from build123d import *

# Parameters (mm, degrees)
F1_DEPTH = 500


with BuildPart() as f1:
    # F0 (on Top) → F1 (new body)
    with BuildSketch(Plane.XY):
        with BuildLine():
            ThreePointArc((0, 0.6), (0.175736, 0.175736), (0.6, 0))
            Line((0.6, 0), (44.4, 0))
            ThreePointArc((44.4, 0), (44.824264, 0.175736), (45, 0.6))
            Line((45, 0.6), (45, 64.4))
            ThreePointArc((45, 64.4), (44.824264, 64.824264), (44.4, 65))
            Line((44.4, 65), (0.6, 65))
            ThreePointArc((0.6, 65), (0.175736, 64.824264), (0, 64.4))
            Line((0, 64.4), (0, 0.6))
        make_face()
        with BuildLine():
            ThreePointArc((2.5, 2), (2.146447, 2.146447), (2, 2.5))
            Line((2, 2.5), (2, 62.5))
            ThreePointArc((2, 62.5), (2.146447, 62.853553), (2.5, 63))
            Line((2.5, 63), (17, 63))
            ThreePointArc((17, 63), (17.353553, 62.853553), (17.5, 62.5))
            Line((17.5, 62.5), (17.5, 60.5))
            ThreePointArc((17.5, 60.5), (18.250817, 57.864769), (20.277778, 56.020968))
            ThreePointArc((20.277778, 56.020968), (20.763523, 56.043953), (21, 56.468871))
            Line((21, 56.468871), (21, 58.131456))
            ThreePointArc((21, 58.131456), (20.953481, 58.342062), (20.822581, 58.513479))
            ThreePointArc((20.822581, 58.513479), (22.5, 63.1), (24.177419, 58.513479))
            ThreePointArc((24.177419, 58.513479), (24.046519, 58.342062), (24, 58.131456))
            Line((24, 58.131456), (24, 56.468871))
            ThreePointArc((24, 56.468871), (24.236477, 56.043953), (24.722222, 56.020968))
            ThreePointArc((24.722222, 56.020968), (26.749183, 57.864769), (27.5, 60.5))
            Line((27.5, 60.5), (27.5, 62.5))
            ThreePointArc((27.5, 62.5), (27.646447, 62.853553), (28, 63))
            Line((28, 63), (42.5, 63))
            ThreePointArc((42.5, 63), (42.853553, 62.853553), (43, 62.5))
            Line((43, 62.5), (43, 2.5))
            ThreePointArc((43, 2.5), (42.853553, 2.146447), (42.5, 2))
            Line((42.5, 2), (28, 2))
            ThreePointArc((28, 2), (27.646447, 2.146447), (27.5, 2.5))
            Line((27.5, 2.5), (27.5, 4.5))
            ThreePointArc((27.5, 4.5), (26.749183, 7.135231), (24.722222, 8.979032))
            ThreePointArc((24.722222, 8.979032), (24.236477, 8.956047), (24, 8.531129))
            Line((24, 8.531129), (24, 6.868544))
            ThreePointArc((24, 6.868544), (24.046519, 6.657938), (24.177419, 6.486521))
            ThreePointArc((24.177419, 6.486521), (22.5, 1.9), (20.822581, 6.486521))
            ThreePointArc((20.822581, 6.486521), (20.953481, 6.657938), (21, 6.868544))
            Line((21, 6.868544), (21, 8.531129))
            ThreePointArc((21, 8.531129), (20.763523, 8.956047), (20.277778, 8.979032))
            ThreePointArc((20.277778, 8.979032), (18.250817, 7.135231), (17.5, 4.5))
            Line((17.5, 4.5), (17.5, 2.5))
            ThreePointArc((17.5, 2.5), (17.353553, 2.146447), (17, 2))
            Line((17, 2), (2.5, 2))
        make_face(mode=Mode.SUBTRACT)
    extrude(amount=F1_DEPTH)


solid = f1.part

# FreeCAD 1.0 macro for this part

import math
import FreeCAD as App
import Part
import Sketcher
from FreeCAD import Vector
Q = App.Units.Quantity

doc = App.newDocument("Part")
params = doc.addObject("Spreadsheet::Sheet", "Params")
for row, (alias, value) in enumerate([
    ("sketch1_radius", "5 mm"),
    ("sketch1_radius2", "0.6 mm"),
    ("sketch1_radius3", "0.500001 mm"),
    ("sketch1_radius4", "2.6 mm"),
    ("sketch1_height", "60 mm"),
    ("pad1_length", "500 mm"),
], start=1):
    params.set(f"A{row}", alias)
    params.set(f"B{row}", "=" + value)
    params.setAlias(f"B{row}", alias)

body = doc.addObject("PartDesign::Body", "Body")

sketch1 = doc.addObject("Sketcher::SketchObject", "Sketch")
body.addObject(sketch1)
sketch1.AttachmentSupport = (doc.XY_Plane, [""])
sketch1.MapMode = "FlatFace"
sketch1.addGeometry(Part.ArcOfCircle(Part.Circle(Vector(0.6, 0.6, 0), Vector(0, 0, 1), 0.6), math.radians(-180), math.radians(-90)), False)
sketch1.addGeometry(Part.LineSegment(Vector(0.6, 0, 0), Vector(44.4, 0, 0)), False)
sketch1.addGeometry(Part.ArcOfCircle(Part.Circle(Vector(44.4, 0.6, 0), Vector(0, 0, 1), 0.6), math.radians(-90), math.radians(0)), False)
sketch1.addGeometry(Part.LineSegment(Vector(45, 0.6, 0), Vector(45, 64.4, 0)), False)
sketch1.addGeometry(Part.ArcOfCircle(Part.Circle(Vector(44.4, 64.4, 0), Vector(0, 0, 1), 0.6), math.radians(0), math.radians(90)), False)
sketch1.addGeometry(Part.LineSegment(Vector(44.4, 65, 0), Vector(0.6, 65, 0)), False)
sketch1.addGeometry(Part.ArcOfCircle(Part.Circle(Vector(0.6, 64.4, 0), Vector(0, 0, 1), 0.6), math.radians(90), math.radians(180)), False)
sketch1.addGeometry(Part.LineSegment(Vector(0, 64.4, 0), Vector(0, 0.6, 0)), False)
sketch1.addGeometry(Part.LineSegment(Vector(17, 2, 0), Vector(2.5, 2, 0)), False)
sketch1.addGeometry(Part.ArcOfCircle(Part.Circle(Vector(2.5, 2.5, 0), Vector(0, 0, 1), 0.5), math.radians(-180), math.radians(-90)), False)
sketch1.addGeometry(Part.LineSegment(Vector(2, 2.5, 0), Vector(2, 62.5, 0)), False)
sketch1.addGeometry(Part.ArcOfCircle(Part.Circle(Vector(2.5, 62.5, 0), Vector(0, 0, 1), 0.5), math.radians(90), math.radians(180)), False)
sketch1.addGeometry(Part.LineSegment(Vector(2.5, 63, 0), Vector(17, 63, 0)), False)
sketch1.addGeometry(Part.ArcOfCircle(Part.Circle(Vector(17, 62.5, 0), Vector(0, 0, 1), 0.5), math.radians(0), math.radians(90)), False)
sketch1.addGeometry(Part.LineSegment(Vector(17.5, 62.5, 0), Vector(17.5, 60.5, 0)), False)
sketch1.addGeometry(Part.ArcOfCircle(Part.Circle(Vector(22.5, 60.5, 0), Vector(0, 0, 1), 5), math.radians(-180), math.radians(-116)), False)
sketch1.addGeometry(Part.ArcOfCircle(Part.Circle(Vector(20.5, 56.47, 0), Vector(0, 0, 1), 0.5), math.radians(-116), math.radians(0)), False)
sketch1.addGeometry(Part.LineSegment(Vector(21, 56.47, 0), Vector(21, 58.13, 0)), False)
sketch1.addGeometry(Part.ArcOfCircle(Part.Circle(Vector(20.5, 58.13, 0), Vector(0, 0, 1), 0.5), math.radians(0), math.radians(50)), False)
sketch1.addGeometry(Part.ArcOfCircle(Part.Circle(Vector(22.5, 60.5, 0), Vector(0, 0, 1), 2.6), math.radians(-50), math.radians(230)), False)
sketch1.addGeometry(Part.ArcOfCircle(Part.Circle(Vector(24.5, 58.13, 0), Vector(0, 0, 1), 0.5), math.radians(130), math.radians(180)), False)
sketch1.addGeometry(Part.LineSegment(Vector(24, 58.13, 0), Vector(24, 56.47, 0)), False)
sketch1.addGeometry(Part.ArcOfCircle(Part.Circle(Vector(24.5, 56.47, 0), Vector(0, 0, 1), 0.5), math.radians(-180), math.radians(-64)), False)
sketch1.addGeometry(Part.ArcOfCircle(Part.Circle(Vector(22.5, 60.5, 0), Vector(0, 0, 1), 5), math.radians(-64), math.radians(0)), False)
sketch1.addGeometry(Part.LineSegment(Vector(27.5, 60.5, 0), Vector(27.5, 62.5, 0)), False)
sketch1.addGeometry(Part.ArcOfCircle(Part.Circle(Vector(28, 62.5, 0), Vector(0, 0, 1), 0.5), math.radians(90), math.radians(180)), False)
sketch1.addGeometry(Part.LineSegment(Vector(28, 63, 0), Vector(42.5, 63, 0)), False)
sketch1.addGeometry(Part.ArcOfCircle(Part.Circle(Vector(42.5, 62.5, 0), Vector(0, 0, 1), 0.5), math.radians(0), math.radians(90)), False)
sketch1.addGeometry(Part.LineSegment(Vector(43, 62.5, 0), Vector(43, 2.5, 0)), False)
sketch1.addGeometry(Part.ArcOfCircle(Part.Circle(Vector(42.5, 2.5, 0), Vector(0, 0, 1), 0.5), math.radians(-90), math.radians(0)), False)
sketch1.addGeometry(Part.LineSegment(Vector(42.5, 2, 0), Vector(28, 2, 0)), False)
sketch1.addGeometry(Part.ArcOfCircle(Part.Circle(Vector(28, 2.5, 0), Vector(0, 0, 1), 0.5), math.radians(-180), math.radians(-90)), False)
sketch1.addGeometry(Part.LineSegment(Vector(27.5, 2.5, 0), Vector(27.5, 4.5, 0)), False)
sketch1.addGeometry(Part.ArcOfCircle(Part.Circle(Vector(22.5, 4.5, 0), Vector(0, 0, 1), 5), math.radians(0), math.radians(64)), False)
sketch1.addGeometry(Part.ArcOfCircle(Part.Circle(Vector(24.5, 8.53, 0), Vector(0, 0, 1), 0.5), math.radians(64), math.radians(180)), False)
sketch1.addGeometry(Part.LineSegment(Vector(24, 8.53, 0), Vector(24, 6.87, 0)), False)
sketch1.addGeometry(Part.ArcOfCircle(Part.Circle(Vector(24.5, 6.87, 0), Vector(0, 0, 1), 0.5), math.radians(-180), math.radians(-130)), False)
sketch1.addGeometry(Part.ArcOfCircle(Part.Circle(Vector(22.5, 4.5, 0), Vector(0, 0, 1), 2.6), math.radians(130), math.radians(410)), False)
sketch1.addGeometry(Part.ArcOfCircle(Part.Circle(Vector(20.5, 6.87, 0), Vector(0, 0, 1), 0.5), math.radians(-50), math.radians(0)), False)
sketch1.addGeometry(Part.LineSegment(Vector(21, 6.87, 0), Vector(21, 8.53, 0)), False)
sketch1.addGeometry(Part.ArcOfCircle(Part.Circle(Vector(20.5, 8.53, 0), Vector(0, 0, 1), 0.5), math.radians(0), math.radians(116)), False)
sketch1.addGeometry(Part.ArcOfCircle(Part.Circle(Vector(22.5, 4.5, 0), Vector(0, 0, 1), 5), math.radians(116), math.radians(180)), False)
sketch1.addGeometry(Part.LineSegment(Vector(17.5, 4.5, 0), Vector(17.5, 2.5, 0)), False)
sketch1.addGeometry(Part.ArcOfCircle(Part.Circle(Vector(17, 2.5, 0), Vector(0, 0, 1), 0.5), math.radians(-90), math.radians(0)), False)
sketch1.addConstraint(Sketcher.Constraint("Tangent", 0, 2, 1, 1))
sketch1.addConstraint(Sketcher.Constraint("Tangent", 1, 2, 2, 1))
sketch1.addConstraint(Sketcher.Constraint("Tangent", 2, 2, 3, 1))
sketch1.addConstraint(Sketcher.Constraint("Tangent", 3, 2, 4, 1))
sketch1.addConstraint(Sketcher.Constraint("Tangent", 4, 2, 5, 1))
sketch1.addConstraint(Sketcher.Constraint("Tangent", 5, 2, 6, 1))
sketch1.addConstraint(Sketcher.Constraint("Tangent", 6, 2, 7, 1))
sketch1.addConstraint(Sketcher.Constraint("Tangent", 7, 2, 0, 1))
sketch1.addConstraint(Sketcher.Constraint("Coincident", 8, 2, 9, 2))
sketch1.addConstraint(Sketcher.Constraint("Coincident", 9, 1, 10, 1))
sketch1.addConstraint(Sketcher.Constraint("Coincident", 10, 2, 11, 2))
sketch1.addConstraint(Sketcher.Constraint("Coincident", 11, 1, 12, 1))
sketch1.addConstraint(Sketcher.Constraint("Coincident", 12, 2, 13, 2))
sketch1.addConstraint(Sketcher.Constraint("Coincident", 13, 1, 14, 1))
sketch1.addConstraint(Sketcher.Constraint("Tangent", 14, 2, 15, 1))
sketch1.addConstraint(Sketcher.Constraint("Tangent", 15, 2, 16, 1))
sketch1.addConstraint(Sketcher.Constraint("Tangent", 16, 2, 17, 1))
sketch1.addConstraint(Sketcher.Constraint("Tangent", 17, 2, 18, 1))
sketch1.addConstraint(Sketcher.Constraint("Coincident", 18, 2, 19, 2))
sketch1.addConstraint(Sketcher.Constraint("Coincident", 19, 1, 20, 1))
sketch1.addConstraint(Sketcher.Constraint("Tangent", 20, 2, 21, 1))
sketch1.addConstraint(Sketcher.Constraint("Tangent", 21, 2, 22, 1))
sketch1.addConstraint(Sketcher.Constraint("Tangent", 22, 2, 23, 1))
sketch1.addConstraint(Sketcher.Constraint("Tangent", 23, 2, 24, 1))
sketch1.addConstraint(Sketcher.Constraint("Coincident", 24, 2, 25, 2))
sketch1.addConstraint(Sketcher.Constraint("Coincident", 25, 1, 26, 1))
sketch1.addConstraint(Sketcher.Constraint("Coincident", 26, 2, 27, 2))
sketch1.addConstraint(Sketcher.Constraint("Coincident", 27, 1, 28, 1))
sketch1.addConstraint(Sketcher.Constraint("Coincident", 28, 2, 29, 2))
sketch1.addConstraint(Sketcher.Constraint("Coincident", 29, 1, 30, 1))
sketch1.addConstraint(Sketcher.Constraint("Coincident", 30, 2, 31, 2))
sketch1.addConstraint(Sketcher.Constraint("Coincident", 31, 1, 32, 1))
sketch1.addConstraint(Sketcher.Constraint("Tangent", 32, 2, 33, 1))
sketch1.addConstraint(Sketcher.Constraint("Tangent", 33, 2, 34, 1))
sketch1.addConstraint(Sketcher.Constraint("Tangent", 34, 2, 35, 1))
sketch1.addConstraint(Sketcher.Constraint("Tangent", 35, 2, 36, 1))
sketch1.addConstraint(Sketcher.Constraint("Coincident", 36, 2, 37, 2))
sketch1.addConstraint(Sketcher.Constraint("Coincident", 37, 1, 38, 1))
sketch1.addConstraint(Sketcher.Constraint("Tangent", 38, 2, 39, 1))
sketch1.addConstraint(Sketcher.Constraint("Tangent", 39, 2, 40, 1))
sketch1.addConstraint(Sketcher.Constraint("Tangent", 40, 2, 41, 1))
sketch1.addConstraint(Sketcher.Constraint("Tangent", 41, 2, 42, 1))
sketch1.addConstraint(Sketcher.Constraint("Coincident", 42, 2, 43, 2))
sketch1.addConstraint(Sketcher.Constraint("Coincident", 43, 1, 8, 1))
sketch1.addConstraint(Sketcher.Constraint("Horizontal", 1))
sketch1.addConstraint(Sketcher.Constraint("Vertical", 3))
sketch1.addConstraint(Sketcher.Constraint("Horizontal", 5))
sketch1.addConstraint(Sketcher.Constraint("Vertical", 7))
sketch1.addConstraint(Sketcher.Constraint("Horizontal", 8))
sketch1.addConstraint(Sketcher.Constraint("Vertical", 10))
sketch1.addConstraint(Sketcher.Constraint("Horizontal", 12))
sketch1.addConstraint(Sketcher.Constraint("Vertical", 14))
sketch1.addConstraint(Sketcher.Constraint("Vertical", 17))
sketch1.addConstraint(Sketcher.Constraint("Vertical", 21))
sketch1.addConstraint(Sketcher.Constraint("Vertical", 24))
sketch1.addConstraint(Sketcher.Constraint("Horizontal", 26))
sketch1.addConstraint(Sketcher.Constraint("Vertical", 28))
sketch1.addConstraint(Sketcher.Constraint("Horizontal", 30))
sketch1.addConstraint(Sketcher.Constraint("Vertical", 32))
sketch1.addConstraint(Sketcher.Constraint("Vertical", 35))
sketch1.addConstraint(Sketcher.Constraint("Vertical", 39))
sketch1.addConstraint(Sketcher.Constraint("Vertical", 42))
sketch1.addConstraint(Sketcher.Constraint("Coincident", 19, 3, 15, 3))
sketch1.addConstraint(Sketcher.Constraint("Coincident", 23, 3, 15, 3))
sketch1.addConstraint(Sketcher.Constraint("Coincident", 37, 3, 33, 3))
sketch1.addConstraint(Sketcher.Constraint("Coincident", 41, 3, 33, 3))
sketch1.addConstraint(Sketcher.Constraint("Equal", 0, 2))
sketch1.addConstraint(Sketcher.Constraint("Equal", 2, 4))
sketch1.addConstraint(Sketcher.Constraint("Equal", 4, 6))
sketch1.addConstraint(Sketcher.Constraint("Equal", 9, 11))
sketch1.addConstraint(Sketcher.Constraint("Equal", 11, 13))
sketch1.addConstraint(Sketcher.Constraint("Equal", 13, 16))
sketch1.addConstraint(Sketcher.Constraint("Equal", 16, 18))
sketch1.addConstraint(Sketcher.Constraint("Equal", 18, 20))
sketch1.addConstraint(Sketcher.Constraint("Equal", 20, 22))
sketch1.addConstraint(Sketcher.Constraint("Equal", 15, 23))
sketch1.addConstraint(Sketcher.Constraint("Equal", 22, 25))
sketch1.addConstraint(Sketcher.Constraint("Equal", 25, 27))
sketch1.addConstraint(Sketcher.Constraint("Equal", 27, 29))
sketch1.addConstraint(Sketcher.Constraint("Equal", 29, 31))
sketch1.addConstraint(Sketcher.Constraint("Equal", 23, 33))
sketch1.addConstraint(Sketcher.Constraint("Equal", 31, 34))
sketch1.addConstraint(Sketcher.Constraint("Equal", 34, 36))
sketch1.addConstraint(Sketcher.Constraint("Equal", 19, 37))
sketch1.addConstraint(Sketcher.Constraint("Equal", 36, 38))
sketch1.addConstraint(Sketcher.Constraint("Equal", 38, 40))
sketch1.addConstraint(Sketcher.Constraint("Equal", 33, 41))
sketch1.addConstraint(Sketcher.Constraint("Equal", 40, 43))
sketch1.addConstraint(Sketcher.Constraint("PointOnObject", 0, 2, -1))
sketch1.addConstraint(Sketcher.Constraint("PointOnObject", 6, 2, -2))
sketch1.addConstraint(Sketcher.Constraint("Horizontal", 18, 3, 20, 3))
sketch1.addConstraint(Sketcher.Constraint("Horizontal", 13, 3, 25, 3))
sketch1.addConstraint(Sketcher.Constraint("Horizontal", 9, 3, 29, 3))
sketch1.addConstraint(Sketcher.Constraint("Horizontal", 36, 3, 38, 3))
sketch1.addConstraint(Sketcher.Constraint("Horizontal", 43, 3, 9, 1))
sketch1.addConstraint(Sketcher.Constraint("Horizontal", 27, 3, 10, 2))
sketch1.addConstraint(Sketcher.Constraint("Horizontal", 10, 2, 13, 1))
sketch1.addConstraint(Sketcher.Constraint("Horizontal", 18, 2, 19, 1))
sketch1.addConstraint(Sketcher.Constraint("Horizontal", 13, 1, 24, 2))
sketch1.addConstraint(Sketcher.Constraint("Horizontal", 24, 2, 27, 1))
sketch1.addConstraint(Sketcher.Constraint("Horizontal", 9, 1, 28, 2))
sketch1.addConstraint(Sketcher.Constraint("Horizontal", 28, 2, 31, 1))
sketch1.addConstraint(Sketcher.Constraint("Horizontal", 36, 2, 37, 1))
sketch1.addConstraint(Sketcher.Constraint("Horizontal", 31, 1, 42, 2))
sketch1.addConstraint(Sketcher.Constraint("Vertical", 25, 3, 31, 3))
sketch1.addConstraint(Sketcher.Constraint("Vertical", 22, 3, 34, 3))
sketch1.addConstraint(Sketcher.Constraint("Vertical", 11, 3, 8, 2))
sketch1.addConstraint(Sketcher.Constraint("Vertical", 8, 2, 11, 1))
sketch1.addConstraint(Sketcher.Constraint("Vertical", 43, 3, 12, 2))
sketch1.addConstraint(Sketcher.Constraint("Vertical", 31, 3, 25, 1))
sketch1.addConstraint(Sketcher.Constraint("Vertical", 29, 3, 26, 2))
sketch1.addConstraint(Sketcher.Constraint("Vertical", 26, 2, 29, 1))
sketch1.addConstraint(Sketcher.Constraint("Vertical", 25, 1, 30, 2))
sketch1.addConstraint(Sketcher.Constraint("Vertical", 19, 1, 36, 2))
sketch1.addConstraint(Sketcher.Constraint("Vertical", 12, 2, 43, 1))
sketch1.addConstraint(Sketcher.Constraint("Equal", 12, 26))
sketch1.addConstraint(Sketcher.Constraint("Equal", 24, 32))
sketch1.addConstraint(Sketcher.Constraint("Radius", 15, Q("5 mm")))
sketch1.addConstraint(Sketcher.Constraint("Radius", 0, Q("0.6 mm")))
sketch1.addConstraint(Sketcher.Constraint("Radius", 9, Q("0.500001 mm")))
sketch1.addConstraint(Sketcher.Constraint("Radius", 19, Q("2.6 mm")))
sketch1.addConstraint(Sketcher.Constraint("DistanceY", 10, 1, 10, 2, Q("60 mm")))
sketch1.addConstraint(Sketcher.Constraint("DistanceY", 14, 2, 14, 1, Q("2 mm")))
sketch1.addConstraint(Sketcher.Constraint("DistanceX", 1, 1, 1, 2, Q("43.8 mm")))
sketch1.addConstraint(Sketcher.Constraint("DistanceX", 8, 2, 8, 1, Q("14.5 mm")))
sketch1.addConstraint(Sketcher.Constraint("DistanceY", 3, 1, 3, 2, Q("63.8 mm")))
sketch1.addConstraint(Sketcher.Constraint("DistanceX", -1, 1, 13, 3, Q("16.999999 mm")))
sketch1.addConstraint(Sketcher.Constraint("DistanceY", -1, 1, 8, 2, Q("2 mm")))
sketch1.addConstraint(Sketcher.Constraint("DistanceX", -1, 1, 16, 2, Q("21 mm")))
sketch1.addConstraint(Sketcher.Constraint("DistanceX", -1, 1, 18, 2, Q("20.822581 mm")))
sketch1.setExpression("Constraints[117]", "Params.sketch1_radius")
sketch1.setExpression("Constraints[118]", "Params.sketch1_radius2")
sketch1.setExpression("Constraints[119]", "Params.sketch1_radius3")
sketch1.setExpression("Constraints[120]", "Params.sketch1_radius4")
sketch1.setExpression("Constraints[121]", "Params.sketch1_height")
pad1 = doc.addObject("PartDesign::Pad", "Pad")
body.addObject(pad1)
pad1.Profile = sketch1
pad1.setExpression("Length", "Params.pad1_length")

doc.recompute()
